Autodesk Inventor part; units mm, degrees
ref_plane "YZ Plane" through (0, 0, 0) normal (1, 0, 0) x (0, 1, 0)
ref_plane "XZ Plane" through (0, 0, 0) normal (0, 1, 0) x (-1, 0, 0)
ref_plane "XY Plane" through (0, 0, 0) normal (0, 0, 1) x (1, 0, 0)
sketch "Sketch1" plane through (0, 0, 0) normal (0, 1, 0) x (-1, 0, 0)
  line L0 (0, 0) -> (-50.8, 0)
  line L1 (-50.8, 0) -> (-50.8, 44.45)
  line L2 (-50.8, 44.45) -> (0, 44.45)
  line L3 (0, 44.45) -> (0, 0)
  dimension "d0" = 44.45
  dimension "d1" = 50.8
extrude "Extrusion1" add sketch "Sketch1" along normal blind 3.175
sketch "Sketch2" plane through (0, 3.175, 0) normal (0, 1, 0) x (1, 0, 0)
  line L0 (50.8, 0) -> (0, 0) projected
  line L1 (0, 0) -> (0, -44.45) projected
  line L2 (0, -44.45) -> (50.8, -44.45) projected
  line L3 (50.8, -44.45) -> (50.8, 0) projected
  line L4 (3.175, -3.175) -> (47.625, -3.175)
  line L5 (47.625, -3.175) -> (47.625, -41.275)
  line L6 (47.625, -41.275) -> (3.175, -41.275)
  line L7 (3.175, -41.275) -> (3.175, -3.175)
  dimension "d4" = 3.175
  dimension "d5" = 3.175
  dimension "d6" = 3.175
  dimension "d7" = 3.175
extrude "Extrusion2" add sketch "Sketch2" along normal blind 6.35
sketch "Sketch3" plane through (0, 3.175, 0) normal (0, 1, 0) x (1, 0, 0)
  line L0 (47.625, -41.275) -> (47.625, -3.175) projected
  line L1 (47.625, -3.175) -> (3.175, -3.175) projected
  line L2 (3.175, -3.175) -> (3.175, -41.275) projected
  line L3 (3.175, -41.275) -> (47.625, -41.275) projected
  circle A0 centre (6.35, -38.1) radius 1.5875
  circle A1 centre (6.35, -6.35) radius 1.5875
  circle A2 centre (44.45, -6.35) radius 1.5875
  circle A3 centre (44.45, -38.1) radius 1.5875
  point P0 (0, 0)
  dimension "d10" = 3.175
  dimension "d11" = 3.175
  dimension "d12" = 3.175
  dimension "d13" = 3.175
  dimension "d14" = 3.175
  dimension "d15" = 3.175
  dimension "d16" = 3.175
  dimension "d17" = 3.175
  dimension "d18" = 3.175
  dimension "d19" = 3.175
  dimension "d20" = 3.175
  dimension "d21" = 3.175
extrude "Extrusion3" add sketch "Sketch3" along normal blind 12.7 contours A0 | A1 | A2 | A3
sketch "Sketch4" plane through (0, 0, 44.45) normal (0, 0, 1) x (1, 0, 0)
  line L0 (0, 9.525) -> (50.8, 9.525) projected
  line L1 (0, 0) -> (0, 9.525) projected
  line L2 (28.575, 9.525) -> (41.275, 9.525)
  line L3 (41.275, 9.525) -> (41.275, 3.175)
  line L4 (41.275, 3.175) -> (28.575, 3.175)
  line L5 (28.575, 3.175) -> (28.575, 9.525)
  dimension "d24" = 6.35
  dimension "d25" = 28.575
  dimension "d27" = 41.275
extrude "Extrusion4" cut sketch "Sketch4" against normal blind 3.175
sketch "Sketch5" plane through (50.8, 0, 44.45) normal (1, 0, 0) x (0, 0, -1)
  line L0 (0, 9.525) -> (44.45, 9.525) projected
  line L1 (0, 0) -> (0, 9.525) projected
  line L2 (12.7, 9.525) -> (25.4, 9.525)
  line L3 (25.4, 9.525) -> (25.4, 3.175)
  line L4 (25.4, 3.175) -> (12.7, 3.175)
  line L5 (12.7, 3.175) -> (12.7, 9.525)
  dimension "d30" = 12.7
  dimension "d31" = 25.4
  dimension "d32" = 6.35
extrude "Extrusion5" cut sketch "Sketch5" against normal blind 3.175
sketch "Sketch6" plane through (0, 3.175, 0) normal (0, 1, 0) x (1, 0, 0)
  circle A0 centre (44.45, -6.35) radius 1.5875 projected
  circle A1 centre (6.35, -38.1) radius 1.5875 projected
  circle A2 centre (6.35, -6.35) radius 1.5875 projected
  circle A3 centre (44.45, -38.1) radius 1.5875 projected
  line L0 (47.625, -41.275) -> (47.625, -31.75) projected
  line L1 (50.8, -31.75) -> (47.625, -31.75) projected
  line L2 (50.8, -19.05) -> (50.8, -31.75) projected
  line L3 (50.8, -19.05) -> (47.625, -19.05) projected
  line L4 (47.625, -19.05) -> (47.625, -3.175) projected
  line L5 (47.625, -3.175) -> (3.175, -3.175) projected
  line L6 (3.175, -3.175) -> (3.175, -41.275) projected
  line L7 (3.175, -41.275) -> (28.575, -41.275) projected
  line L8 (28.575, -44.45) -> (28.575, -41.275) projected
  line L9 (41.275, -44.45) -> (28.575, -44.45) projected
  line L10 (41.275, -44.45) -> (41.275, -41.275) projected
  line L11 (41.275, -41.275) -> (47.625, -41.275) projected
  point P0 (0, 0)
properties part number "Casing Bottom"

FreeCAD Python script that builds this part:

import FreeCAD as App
import Part
import Sketcher
from FreeCAD import Vector
Q = App.Units.Quantity

doc = App.newDocument("Part")
params = doc.addObject("Spreadsheet::Sheet", "Params")
for row, (alias, value) in enumerate([
    ("sketch1_width", "2 in"),
    ("sketch1_height", "1.75 in"),
    ("pad1_length", "0.125 in"),
    ("sketch2_width", "2 in"),
    ("sketch2_height", "1.5 in"),
    ("pad2_length", "0.25 in"),
    ("sketch3_diameter", "0.125 in"),
    ("pad3_length", "0.5 in"),
    ("sketch4_height", "0.25 in"),
    ("sketch4_width", "0.5 in"),
    ("pocket1_length", "0.125 in"),
    ("sketch5_height", "0.5 in"),
    ("sketch5_width", "0.25 in"),
    ("pocket2_length", "0.125 in"),
], start=1):
    params.set(f"A{row}", alias)
    params.set(f"B{row}", "=" + value)
    params.setAlias(f"B{row}", alias)

body = doc.addObject("PartDesign::Body", "Body")

sketch1 = body.newObject("Sketcher::SketchObject", "Sketch")
sketch1.AttachmentSupport = (doc.getObject("XZ_Plane"), [""])
sketch1.MapMode = "FlatFace"
sketch1.addGeometry(Part.LineSegment(Vector(51, 0, 0), Vector(0, 0, 0)), False)
sketch1.addGeometry(Part.LineSegment(Vector(0, 0, 0), Vector(0, 44, 0)), False)
sketch1.addGeometry(Part.LineSegment(Vector(0, 44, 0), Vector(51, 44, 0)), False)
sketch1.addGeometry(Part.LineSegment(Vector(51, 44, 0), Vector(51, 0, 0)), False)
sketch1.addConstraint(Sketcher.Constraint("Coincident", 0, 2, 1, 1))
sketch1.addConstraint(Sketcher.Constraint("Coincident", 1, 2, 2, 1))
sketch1.addConstraint(Sketcher.Constraint("Coincident", 2, 2, 3, 1))
sketch1.addConstraint(Sketcher.Constraint("Coincident", 3, 2, 0, 1))
sketch1.addConstraint(Sketcher.Constraint("Horizontal", 0))
sketch1.addConstraint(Sketcher.Constraint("Vertical", 1))
sketch1.addConstraint(Sketcher.Constraint("Horizontal", 2))
sketch1.addConstraint(Sketcher.Constraint("Vertical", 3))
sketch1.addConstraint(Sketcher.Constraint("Coincident", 0, 2, -1, 1))
sketch1.addConstraint(Sketcher.Constraint("DistanceX", 0, 2, 0, 1, Q("2 in")))
sketch1.addConstraint(Sketcher.Constraint("DistanceY", 1, 1, 1, 2, Q("1.75 in")))
sketch1.setExpression("Constraints[9]", "Params.sketch1_width")
sketch1.setExpression("Constraints[10]", "Params.sketch1_height")
pad1 = body.newObject("PartDesign::Pad", "Pad")
pad1.Profile = sketch1
pad1.setExpression("Length", "Params.pad1_length")
pad1.Reversed = True

sketch2 = body.newObject("Sketcher::SketchObject", "Sketch001")
sketch2.AttachmentSupport = (doc.getObject("XZ_Plane"), [""])
sketch2.MapMode = "FlatFace"
sketch2.AttachmentOffset = App.Placement(Vector(0, 0, -0.125 * 25.4), App.Rotation())
sketch2.addGeometry(Part.LineSegment(Vector(51, 44, 0), Vector(51, 0, 0)), False)
sketch2.addGeometry(Part.LineSegment(Vector(51, 0, 0), Vector(0, 0, 0)), False)
sketch2.addGeometry(Part.LineSegment(Vector(0, 0, 0), Vector(0, 44, 0)), False)
sketch2.addGeometry(Part.LineSegment(Vector(0, 44, 0), Vector(51, 44, 0)), False)
sketch2.addGeometry(Part.LineSegment(Vector(3, 41, 0), Vector(3, 3, 0)), False)
sketch2.addGeometry(Part.LineSegment(Vector(3, 3, 0), Vector(48, 3, 0)), False)
sketch2.addGeometry(Part.LineSegment(Vector(48, 3, 0), Vector(48, 41, 0)), False)
sketch2.addGeometry(Part.LineSegment(Vector(48, 41, 0), Vector(3, 41, 0)), False)
sketch2.addConstraint(Sketcher.Constraint("Coincident", 0, 2, 1, 1))
sketch2.addConstraint(Sketcher.Constraint("Coincident", 1, 2, 2, 1))
sketch2.addConstraint(Sketcher.Constraint("Coincident", 2, 2, 3, 1))
sketch2.addConstraint(Sketcher.Constraint("Coincident", 3, 2, 0, 1))
sketch2.addConstraint(Sketcher.Constraint("Coincident", 4, 2, 5, 1))
sketch2.addConstraint(Sketcher.Constraint("Coincident", 5, 2, 6, 1))
sketch2.addConstraint(Sketcher.Constraint("Coincident", 6, 2, 7, 1))
sketch2.addConstraint(Sketcher.Constraint("Coincident", 7, 2, 4, 1))
sketch2.addConstraint(Sketcher.Constraint("Vertical", 0))
sketch2.addConstraint(Sketcher.Constraint("Horizontal", 1))
sketch2.addConstraint(Sketcher.Constraint("Vertical", 2))
sketch2.addConstraint(Sketcher.Constraint("Horizontal", 3))
sketch2.addConstraint(Sketcher.Constraint("Vertical", 4))
sketch2.addConstraint(Sketcher.Constraint("Horizontal", 5))
sketch2.addConstraint(Sketcher.Constraint("Vertical", 6))
sketch2.addConstraint(Sketcher.Constraint("Horizontal", 7))
sketch2.addConstraint(Sketcher.Constraint("Coincident", 1, 2, -1, 1))
sketch2.addConstraint(Sketcher.Constraint("Equal", 7, 0))
sketch2.addConstraint(Sketcher.Constraint("DistanceX", 1, 2, 1, 1, Q("2 in")))
sketch2.addConstraint(Sketcher.Constraint("DistanceY", 4, 2, 4, 1, Q("1.5 in")))
sketch2.addConstraint(Sketcher.Constraint("DistanceX", -1, 1, 4, 2, Q("0.125 in")))
sketch2.addConstraint(Sketcher.Constraint("DistanceY", -1, 1, 4, 2, Q("0.125 in")))
sketch2.addConstraint(Sketcher.Constraint("DistanceX", 5, 2, 0, 2, Q("0.125 in")))
sketch2.setExpression("Constraints[18]", "Params.sketch2_width")
sketch2.setExpression("Constraints[19]", "Params.sketch2_height")
pad2 = body.newObject("PartDesign::Pad", "Pad001")
pad2.Profile = sketch2
pad2.setExpression("Length", "Params.pad2_length")
pad2.Reversed = True

sketch3 = body.newObject("Sketcher::SketchObject", "Sketch002")
sketch3.AttachmentSupport = (doc.getObject("XZ_Plane"), [""])
sketch3.MapMode = "FlatFace"
sketch3.AttachmentOffset = App.Placement(Vector(0, 0, -0.125 * 25.4), App.Rotation())
sketch3.addGeometry(Part.Circle(Vector(6.3, 38.1, 0), Vector(0, 0, 1), 1.6), False)
sketch3.addGeometry(Part.Circle(Vector(6.3, 6.3, 0), Vector(0, 0, 1), 1.6), False)
sketch3.addGeometry(Part.Circle(Vector(44.5, 6.3, 0), Vector(0, 0, 1), 1.6), False)
sketch3.addGeometry(Part.Circle(Vector(44.5, 38.1, 0), Vector(0, 0, 1), 1.6), False)
sketch3.addConstraint(Sketcher.Constraint("Equal", 0, 1))
sketch3.addConstraint(Sketcher.Constraint("Equal", 1, 2))
sketch3.addConstraint(Sketcher.Constraint("Equal", 2, 3))
sketch3.addConstraint(Sketcher.Constraint("Horizontal", 1, 3, 2, 3))
sketch3.addConstraint(Sketcher.Constraint("Horizontal", 0, 3, 3, 3))
sketch3.addConstraint(Sketcher.Constraint("Vertical", 0, 3, 1, 3))
sketch3.addConstraint(Sketcher.Constraint("Vertical", 2, 3, 3, 3))
sketch3.addConstraint(Sketcher.Constraint("Diameter", 0, Q("0.125 in")))
sketch3.addConstraint(Sketcher.Constraint("DistanceY", -1, 1, 0, 3, Q("1.5 in")))
sketch3.addConstraint(Sketcher.Constraint("DistanceX", 1, 3, 2, 3, Q("1.5 in")))
sketch3.addConstraint(Sketcher.Constraint("DistanceX", -1, 1, 0, 3, Q("0.25 in")))
sketch3.addConstraint(Sketcher.Constraint("DistanceY", -1, 1, 1, 3, Q("0.25 in")))
sketch3.setExpression("Constraints[7]", "Params.sketch3_diameter")
pad3 = body.newObject("PartDesign::Pad", "Pad002")
pad3.Profile = sketch3
pad3.setExpression("Length", "Params.pad3_length")
pad3.Reversed = True

sketch4 = body.newObject("Sketcher::SketchObject", "Sketch003")
sketch4.AttachmentSupport = (doc.getObject("XY_Plane"), [""])
sketch4.MapMode = "FlatFace"
sketch4.AttachmentOffset = App.Placement(Vector(0, 0, 1.75 * 25.4), App.Rotation())
sketch4.addGeometry(Part.LineSegment(Vector(41, 10, 0), Vector(29, 10, 0)), False)
sketch4.addGeometry(Part.LineSegment(Vector(29, 10, 0), Vector(29, 3, 0)), False)
sketch4.addGeometry(Part.LineSegment(Vector(29, 3, 0), Vector(41, 3, 0)), False)
sketch4.addGeometry(Part.LineSegment(Vector(41, 3, 0), Vector(41, 10, 0)), False)
sketch4.addConstraint(Sketcher.Constraint("Coincident", 0, 2, 1, 1))
sketch4.addConstraint(Sketcher.Constraint("Coincident", 1, 2, 2, 1))
sketch4.addConstraint(Sketcher.Constraint("Coincident", 2, 2, 3, 1))
sketch4.addConstraint(Sketcher.Constraint("Coincident", 3, 2, 0, 1))
sketch4.addConstraint(Sketcher.Constraint("Horizontal", 0))
sketch4.addConstraint(Sketcher.Constraint("Vertical", 1))
sketch4.addConstraint(Sketcher.Constraint("Horizontal", 2))
sketch4.addConstraint(Sketcher.Constraint("Vertical", 3))
sketch4.addConstraint(Sketcher.Constraint("DistanceY", 1, 2, 1, 1, Q("0.25 in")))
sketch4.addConstraint(Sketcher.Constraint("DistanceX", 0, 2, 0, 1, Q("0.5 in")))
sketch4.addConstraint(Sketcher.Constraint("DistanceX", -1, 1, 0, 2, Q("1.125 in")))
sketch4.addConstraint(Sketcher.Constraint("DistanceY", -1, 1, 0, 2, Q("0.375 in")))
sketch4.setExpression("Constraints[8]", "Params.sketch4_height")
sketch4.setExpression("Constraints[9]", "Params.sketch4_width")
pocket1 = body.newObject("PartDesign::Pocket", "Pocket")
pocket1.Profile = sketch4
pocket1.setExpression("Length", "Params.pocket1_length")

sketch5 = body.newObject("Sketcher::SketchObject", "Sketch004")
sketch5.AttachmentSupport = (doc.getObject("YZ_Plane"), [""])
sketch5.MapMode = "FlatFace"
sketch5.AttachmentOffset = App.Placement(Vector(0, 0, 2 * 25.4), App.Rotation())
sketch5.addGeometry(Part.LineSegment(Vector(10, 19, 0), Vector(10, 32, 0)), False)
sketch5.addGeometry(Part.LineSegment(Vector(10, 32, 0), Vector(3, 32, 0)), False)
sketch5.addGeometry(Part.LineSegment(Vector(3, 32, 0), Vector(3, 19, 0)), False)
sketch5.addGeometry(Part.LineSegment(Vector(3, 19, 0), Vector(10, 19, 0)), False)
sketch5.addConstraint(Sketcher.Constraint("Coincident", 0, 2, 1, 1))
sketch5.addConstraint(Sketcher.Constraint("Coincident", 1, 2, 2, 1))
sketch5.addConstraint(Sketcher.Constraint("Coincident", 2, 2, 3, 1))
sketch5.addConstraint(Sketcher.Constraint("Coincident", 3, 2, 0, 1))
sketch5.addConstraint(Sketcher.Constraint("Vertical", 0))
sketch5.addConstraint(Sketcher.Constraint("Horizontal", 1))
sketch5.addConstraint(Sketcher.Constraint("Vertical", 2))
sketch5.addConstraint(Sketcher.Constraint("Horizontal", 3))
sketch5.addConstraint(Sketcher.Constraint("DistanceY", 0, 1, 0, 2, Q("0.5 in")))
sketch5.addConstraint(Sketcher.Constraint("DistanceX", 1, 2, 1, 1, Q("0.25 in")))
sketch5.addConstraint(Sketcher.Constraint("DistanceY", -1, 1, 0, 2, Q("1.25 in")))
sketch5.addConstraint(Sketcher.Constraint("DistanceX", -1, 1, 0, 2, Q("0.375 in")))
sketch5.setExpression("Constraints[8]", "Params.sketch5_height")
sketch5.setExpression("Constraints[9]", "Params.sketch5_width")
pocket2 = body.newObject("PartDesign::Pocket", "Pocket001")
pocket2.Profile = sketch5
pocket2.setExpression("Length", "Params.pocket2_length")

doc.recompute()
